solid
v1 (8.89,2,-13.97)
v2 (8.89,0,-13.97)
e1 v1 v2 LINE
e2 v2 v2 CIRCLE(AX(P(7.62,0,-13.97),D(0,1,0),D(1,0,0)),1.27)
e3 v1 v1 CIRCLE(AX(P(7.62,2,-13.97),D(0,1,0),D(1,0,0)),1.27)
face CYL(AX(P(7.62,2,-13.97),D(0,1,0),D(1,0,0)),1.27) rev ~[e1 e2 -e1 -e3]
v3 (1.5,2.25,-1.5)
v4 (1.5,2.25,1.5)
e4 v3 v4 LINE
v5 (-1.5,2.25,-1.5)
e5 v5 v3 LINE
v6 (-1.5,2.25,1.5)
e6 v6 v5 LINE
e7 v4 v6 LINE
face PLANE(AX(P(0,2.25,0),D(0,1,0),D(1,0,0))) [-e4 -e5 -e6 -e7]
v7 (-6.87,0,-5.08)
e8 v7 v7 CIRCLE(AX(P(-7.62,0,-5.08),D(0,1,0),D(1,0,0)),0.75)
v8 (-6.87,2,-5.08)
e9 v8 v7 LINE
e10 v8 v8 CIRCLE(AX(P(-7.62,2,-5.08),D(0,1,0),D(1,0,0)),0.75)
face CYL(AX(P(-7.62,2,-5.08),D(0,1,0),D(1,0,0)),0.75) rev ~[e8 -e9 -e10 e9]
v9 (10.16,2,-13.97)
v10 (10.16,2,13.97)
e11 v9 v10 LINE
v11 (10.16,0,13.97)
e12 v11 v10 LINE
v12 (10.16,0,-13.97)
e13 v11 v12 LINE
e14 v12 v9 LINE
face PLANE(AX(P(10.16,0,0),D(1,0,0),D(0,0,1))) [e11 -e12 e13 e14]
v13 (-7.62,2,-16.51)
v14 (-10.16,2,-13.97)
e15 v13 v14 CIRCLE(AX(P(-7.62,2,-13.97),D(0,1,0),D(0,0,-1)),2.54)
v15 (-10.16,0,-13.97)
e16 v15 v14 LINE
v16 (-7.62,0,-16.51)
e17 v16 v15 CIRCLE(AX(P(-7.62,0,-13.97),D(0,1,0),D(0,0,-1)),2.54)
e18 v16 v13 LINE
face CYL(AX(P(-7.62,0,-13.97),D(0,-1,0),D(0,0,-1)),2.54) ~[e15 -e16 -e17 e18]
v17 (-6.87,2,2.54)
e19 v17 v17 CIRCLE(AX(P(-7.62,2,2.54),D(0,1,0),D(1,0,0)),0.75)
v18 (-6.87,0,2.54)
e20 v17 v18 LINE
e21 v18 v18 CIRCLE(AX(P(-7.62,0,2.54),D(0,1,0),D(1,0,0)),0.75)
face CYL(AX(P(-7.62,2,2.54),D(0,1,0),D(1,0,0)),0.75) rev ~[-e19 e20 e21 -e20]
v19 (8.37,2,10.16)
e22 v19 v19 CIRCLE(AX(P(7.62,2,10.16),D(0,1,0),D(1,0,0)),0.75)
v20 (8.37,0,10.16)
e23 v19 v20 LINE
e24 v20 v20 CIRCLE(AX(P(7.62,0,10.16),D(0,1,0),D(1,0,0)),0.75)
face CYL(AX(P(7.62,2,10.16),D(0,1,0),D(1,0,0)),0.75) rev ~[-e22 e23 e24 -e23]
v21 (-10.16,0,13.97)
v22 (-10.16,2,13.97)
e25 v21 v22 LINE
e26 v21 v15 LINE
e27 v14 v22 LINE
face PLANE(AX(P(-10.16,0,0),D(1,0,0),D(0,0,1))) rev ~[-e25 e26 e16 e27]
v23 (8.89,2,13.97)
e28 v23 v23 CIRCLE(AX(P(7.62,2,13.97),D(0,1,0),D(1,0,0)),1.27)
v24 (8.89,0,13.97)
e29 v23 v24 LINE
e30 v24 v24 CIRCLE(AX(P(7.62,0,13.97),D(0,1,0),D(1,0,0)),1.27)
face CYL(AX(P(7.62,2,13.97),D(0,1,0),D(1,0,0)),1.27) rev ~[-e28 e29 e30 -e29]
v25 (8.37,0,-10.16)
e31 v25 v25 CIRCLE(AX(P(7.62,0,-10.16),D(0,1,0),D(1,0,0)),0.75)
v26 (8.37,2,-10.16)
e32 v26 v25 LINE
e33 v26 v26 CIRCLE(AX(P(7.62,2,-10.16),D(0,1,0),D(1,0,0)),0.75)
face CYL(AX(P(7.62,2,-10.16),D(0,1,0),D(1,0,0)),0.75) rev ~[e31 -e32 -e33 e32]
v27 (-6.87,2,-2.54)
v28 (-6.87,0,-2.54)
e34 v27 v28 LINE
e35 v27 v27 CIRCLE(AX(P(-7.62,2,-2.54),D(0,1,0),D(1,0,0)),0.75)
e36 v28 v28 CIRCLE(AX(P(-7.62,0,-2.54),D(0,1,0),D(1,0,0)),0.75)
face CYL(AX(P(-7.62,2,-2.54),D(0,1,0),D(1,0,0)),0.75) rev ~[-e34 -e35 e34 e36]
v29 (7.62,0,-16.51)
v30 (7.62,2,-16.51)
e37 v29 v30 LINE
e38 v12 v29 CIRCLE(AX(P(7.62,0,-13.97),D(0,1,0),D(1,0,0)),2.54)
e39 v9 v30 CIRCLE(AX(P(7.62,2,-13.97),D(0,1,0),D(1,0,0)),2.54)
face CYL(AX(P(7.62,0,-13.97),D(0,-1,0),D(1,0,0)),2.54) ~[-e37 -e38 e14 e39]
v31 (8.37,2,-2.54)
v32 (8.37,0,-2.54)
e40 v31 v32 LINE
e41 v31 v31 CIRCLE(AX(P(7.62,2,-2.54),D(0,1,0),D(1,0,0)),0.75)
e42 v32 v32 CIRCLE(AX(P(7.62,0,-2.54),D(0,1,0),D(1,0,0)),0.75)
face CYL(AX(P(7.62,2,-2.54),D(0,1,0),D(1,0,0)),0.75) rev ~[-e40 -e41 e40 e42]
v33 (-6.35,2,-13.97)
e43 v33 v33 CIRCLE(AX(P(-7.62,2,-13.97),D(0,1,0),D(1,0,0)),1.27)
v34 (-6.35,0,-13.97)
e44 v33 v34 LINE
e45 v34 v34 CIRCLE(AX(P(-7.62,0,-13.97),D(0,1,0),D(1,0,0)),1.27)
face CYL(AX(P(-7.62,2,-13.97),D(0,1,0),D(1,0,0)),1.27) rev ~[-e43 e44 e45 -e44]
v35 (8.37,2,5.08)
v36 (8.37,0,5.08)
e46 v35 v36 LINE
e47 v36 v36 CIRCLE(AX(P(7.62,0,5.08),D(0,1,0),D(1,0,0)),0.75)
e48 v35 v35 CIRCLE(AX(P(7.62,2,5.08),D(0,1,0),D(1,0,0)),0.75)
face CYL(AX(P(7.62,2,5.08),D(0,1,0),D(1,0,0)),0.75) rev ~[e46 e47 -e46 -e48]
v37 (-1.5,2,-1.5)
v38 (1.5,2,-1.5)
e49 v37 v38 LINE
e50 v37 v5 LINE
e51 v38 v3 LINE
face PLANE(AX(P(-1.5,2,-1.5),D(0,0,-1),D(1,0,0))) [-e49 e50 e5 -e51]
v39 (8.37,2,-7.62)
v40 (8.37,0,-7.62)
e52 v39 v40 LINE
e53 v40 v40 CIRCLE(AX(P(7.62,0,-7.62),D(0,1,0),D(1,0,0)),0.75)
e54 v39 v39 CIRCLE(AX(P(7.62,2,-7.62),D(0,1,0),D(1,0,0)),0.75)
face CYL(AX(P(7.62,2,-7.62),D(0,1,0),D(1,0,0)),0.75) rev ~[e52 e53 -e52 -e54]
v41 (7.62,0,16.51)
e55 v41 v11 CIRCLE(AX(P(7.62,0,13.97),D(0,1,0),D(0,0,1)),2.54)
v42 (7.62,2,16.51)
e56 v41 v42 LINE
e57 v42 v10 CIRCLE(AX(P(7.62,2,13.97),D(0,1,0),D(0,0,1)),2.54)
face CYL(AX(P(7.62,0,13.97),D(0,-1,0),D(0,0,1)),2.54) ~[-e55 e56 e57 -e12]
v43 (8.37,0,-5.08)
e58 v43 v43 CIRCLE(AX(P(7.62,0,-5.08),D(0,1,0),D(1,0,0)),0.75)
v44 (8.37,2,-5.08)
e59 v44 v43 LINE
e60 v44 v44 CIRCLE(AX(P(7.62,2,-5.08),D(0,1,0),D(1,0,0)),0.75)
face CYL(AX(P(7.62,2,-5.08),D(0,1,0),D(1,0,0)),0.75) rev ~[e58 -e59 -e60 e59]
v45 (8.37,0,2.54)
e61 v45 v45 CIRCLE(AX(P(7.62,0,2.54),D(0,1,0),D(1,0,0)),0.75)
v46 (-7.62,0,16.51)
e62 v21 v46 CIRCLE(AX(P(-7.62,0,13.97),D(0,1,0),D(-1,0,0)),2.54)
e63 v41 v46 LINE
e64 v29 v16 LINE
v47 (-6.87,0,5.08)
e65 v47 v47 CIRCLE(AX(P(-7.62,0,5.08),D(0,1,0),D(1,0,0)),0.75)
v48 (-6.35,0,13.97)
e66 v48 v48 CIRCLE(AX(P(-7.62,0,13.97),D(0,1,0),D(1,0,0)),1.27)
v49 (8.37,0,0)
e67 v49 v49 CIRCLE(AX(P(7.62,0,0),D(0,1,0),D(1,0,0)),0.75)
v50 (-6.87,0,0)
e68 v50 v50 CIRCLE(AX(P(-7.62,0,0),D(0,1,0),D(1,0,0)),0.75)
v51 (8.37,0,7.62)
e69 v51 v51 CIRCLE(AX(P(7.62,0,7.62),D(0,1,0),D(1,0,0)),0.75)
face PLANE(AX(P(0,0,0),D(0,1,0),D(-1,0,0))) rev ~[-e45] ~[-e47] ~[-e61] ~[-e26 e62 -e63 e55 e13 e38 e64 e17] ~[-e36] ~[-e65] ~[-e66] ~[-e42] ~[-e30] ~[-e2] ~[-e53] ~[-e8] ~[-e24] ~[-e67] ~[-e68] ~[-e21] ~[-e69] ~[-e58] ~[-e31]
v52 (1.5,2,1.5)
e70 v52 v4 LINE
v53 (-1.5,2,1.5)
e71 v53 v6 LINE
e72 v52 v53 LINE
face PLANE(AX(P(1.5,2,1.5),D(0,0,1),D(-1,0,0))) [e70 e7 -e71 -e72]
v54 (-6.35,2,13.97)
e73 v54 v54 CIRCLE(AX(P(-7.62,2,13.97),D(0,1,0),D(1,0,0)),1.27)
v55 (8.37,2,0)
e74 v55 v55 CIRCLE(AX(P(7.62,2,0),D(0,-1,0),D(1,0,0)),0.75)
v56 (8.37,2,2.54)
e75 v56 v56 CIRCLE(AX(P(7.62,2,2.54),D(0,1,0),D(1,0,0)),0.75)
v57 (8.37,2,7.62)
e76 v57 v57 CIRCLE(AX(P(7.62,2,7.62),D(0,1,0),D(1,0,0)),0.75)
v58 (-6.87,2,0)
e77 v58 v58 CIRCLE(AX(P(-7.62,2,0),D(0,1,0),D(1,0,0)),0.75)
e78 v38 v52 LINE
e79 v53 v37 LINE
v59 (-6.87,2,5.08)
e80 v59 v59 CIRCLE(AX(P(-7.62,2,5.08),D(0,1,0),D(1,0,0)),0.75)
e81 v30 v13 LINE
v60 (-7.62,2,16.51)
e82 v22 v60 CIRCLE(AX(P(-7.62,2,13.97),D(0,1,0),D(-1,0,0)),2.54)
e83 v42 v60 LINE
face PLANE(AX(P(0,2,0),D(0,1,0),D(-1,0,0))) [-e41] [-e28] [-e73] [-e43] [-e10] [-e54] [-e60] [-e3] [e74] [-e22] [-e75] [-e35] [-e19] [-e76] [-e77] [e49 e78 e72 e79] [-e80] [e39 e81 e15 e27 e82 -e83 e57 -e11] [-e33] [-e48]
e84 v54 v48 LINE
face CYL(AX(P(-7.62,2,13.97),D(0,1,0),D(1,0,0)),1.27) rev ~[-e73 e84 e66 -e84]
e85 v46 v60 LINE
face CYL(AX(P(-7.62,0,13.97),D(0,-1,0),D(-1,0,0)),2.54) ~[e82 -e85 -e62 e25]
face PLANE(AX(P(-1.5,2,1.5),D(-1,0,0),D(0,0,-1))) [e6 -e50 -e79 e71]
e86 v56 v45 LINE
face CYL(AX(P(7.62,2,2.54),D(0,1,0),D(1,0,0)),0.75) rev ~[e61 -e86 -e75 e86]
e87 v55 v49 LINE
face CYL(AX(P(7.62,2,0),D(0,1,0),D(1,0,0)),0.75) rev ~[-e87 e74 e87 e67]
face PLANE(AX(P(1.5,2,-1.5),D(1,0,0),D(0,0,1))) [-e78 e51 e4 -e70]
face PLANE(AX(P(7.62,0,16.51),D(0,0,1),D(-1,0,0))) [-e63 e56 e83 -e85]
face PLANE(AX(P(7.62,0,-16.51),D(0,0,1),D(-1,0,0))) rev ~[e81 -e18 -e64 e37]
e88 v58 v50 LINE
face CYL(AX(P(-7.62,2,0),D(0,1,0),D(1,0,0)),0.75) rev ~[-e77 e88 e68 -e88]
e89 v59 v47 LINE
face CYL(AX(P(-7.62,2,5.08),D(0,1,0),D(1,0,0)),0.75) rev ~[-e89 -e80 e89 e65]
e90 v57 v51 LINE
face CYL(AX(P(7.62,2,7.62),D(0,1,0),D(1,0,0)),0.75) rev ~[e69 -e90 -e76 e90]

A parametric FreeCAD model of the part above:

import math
import FreeCAD as App
import Part
import Sketcher
Q = App.Units.Quantity


def add_polygon(sketch, points):
    """Adds a closed chain of lines whose ends are joined by coincident constraints."""
    first, n = sketch.GeometryCount, len(points)
    for a, b in zip(points, points[1:] + points[:1]):
        sketch.addGeometry(Part.LineSegment(App.Vector(*a, 0), App.Vector(*b, 0)), False)
    for i in range(n):
        sketch.addConstraint(Sketcher.Constraint("Coincident", first + i, 2, first + (i + 1) % n, 1))

doc = App.newDocument("Part")
params = doc.addObject("Spreadsheet::Sheet", "Params")
for row, (alias, value) in enumerate([
    ("sketch1_radius", "0.1 in"),
    ("sketch1_width", "0.6 in"),
    ("pad1_length", "2 mm"),
    ("pocket1_length", "2 mm"),
    ("pad2_length", "0.25 mm"),
    ("sketch4_diameter", "0.1 in"),
    ("pocket2_length", "2 mm"),
], start=1):
    params.set(f"A{row}", alias)
    params.set(f"B{row}", "=" + value)
    params.setAlias(f"B{row}", alias)

body = doc.addObject("PartDesign::Body", "Body")

# Sketch on XZ plane
sketch1 = body.newObject("Sketcher::SketchObject", "Sketch")
sketch1.AttachmentSupport = (doc.getObject("XZ_Plane"), [""])
sketch1.MapMode = "FlatFace"
sketch1.addGeometry(Part.LineSegment(App.Vector(10.16, 13.97, 0), App.Vector(10.16, -13.97, 0)), False)
sketch1.addGeometry(Part.ArcOfCircle(Part.Circle(App.Vector(7.62, -13.97, 0), App.Vector(0, 0, 1), 2.54), math.radians(-90), math.radians(0)), False)
sketch1.addGeometry(Part.LineSegment(App.Vector(7.62, -16.51, 0), App.Vector(-7.62, -16.51, 0)), False)
sketch1.addGeometry(Part.ArcOfCircle(Part.Circle(App.Vector(-7.62, -13.97, 0), App.Vector(0, 0, 1), 2.54), math.radians(180), math.radians(270)), False)
sketch1.addGeometry(Part.LineSegment(App.Vector(-10.16, -13.97, 0), App.Vector(-10.16, 13.97, 0)), False)
sketch1.addGeometry(Part.ArcOfCircle(Part.Circle(App.Vector(-7.62, 13.97, 0), App.Vector(0, 0, 1), 2.54), math.radians(90), math.radians(180)), False)
sketch1.addGeometry(Part.LineSegment(App.Vector(-7.62, 16.51, 0), App.Vector(7.62, 16.51, 0)), False)
sketch1.addGeometry(Part.ArcOfCircle(Part.Circle(App.Vector(7.62, 13.97, 0), App.Vector(0, 0, 1), 2.54), math.radians(0), math.radians(90)), False)
sketch1.addConstraint(Sketcher.Constraint("Tangent", 0, 2, 1, 2))
sketch1.addConstraint(Sketcher.Constraint("Tangent", 1, 1, 2, 1))
sketch1.addConstraint(Sketcher.Constraint("Tangent", 2, 2, 3, 2))
sketch1.addConstraint(Sketcher.Constraint("Tangent", 3, 1, 4, 1))
sketch1.addConstraint(Sketcher.Constraint("Tangent", 4, 2, 5, 2))
sketch1.addConstraint(Sketcher.Constraint("Tangent", 5, 1, 6, 1))
sketch1.addConstraint(Sketcher.Constraint("Tangent", 6, 2, 7, 2))
sketch1.addConstraint(Sketcher.Constraint("Tangent", 7, 1, 0, 1))
sketch1.addConstraint(Sketcher.Constraint("Vertical", 0))
sketch1.addConstraint(Sketcher.Constraint("Horizontal", 2))
sketch1.addConstraint(Sketcher.Constraint("Vertical", 4))
sketch1.addConstraint(Sketcher.Constraint("Horizontal", 6))
sketch1.addConstraint(Sketcher.Constraint("Equal", 1, 3))
sketch1.addConstraint(Sketcher.Constraint("Equal", 3, 5))
sketch1.addConstraint(Sketcher.Constraint("Equal", 5, 7))
sketch1.addConstraint(Sketcher.Constraint("Symmetric", 1, 3, 5, 3, -1, 1))
sketch1.addConstraint(Sketcher.Constraint("Radius", 1, Q("0.1 in")))
sketch1.addConstraint(Sketcher.Constraint("DistanceX", 2, 2, 2, 1, Q("0.6 in")))
sketch1.addConstraint(Sketcher.Constraint("DistanceY", 1, 3, -1, 1, Q("0.55 in")))
sketch1.setExpression("Constraints[16]", "Params.sketch1_radius")
sketch1.setExpression("Constraints[17]", "Params.sketch1_width")
pad1 = body.newObject("PartDesign::Pad", "Pad")
pad1.Profile = sketch1
pad1.setExpression("Length", "Params.pad1_length")
pad1.Reversed = True

# Sketch on XZ plane
sketch2 = body.newObject("Sketcher::SketchObject", "Sketch001")
sketch2.AttachmentSupport = (doc.getObject("XZ_Plane"), [""])
sketch2.MapMode = "FlatFace"
sketch2.AttachmentOffset = App.Placement(App.Vector(0, 0, -2), App.Rotation())
sketch2.addGeometry(Part.Circle(App.Vector(7.62, 0, 0), App.Vector(0, 0, 1), 0.75), False)
sketch2.addGeometry(Part.Circle(App.Vector(-7.62, 0, 0), App.Vector(0, 0, 1), 0.75), False)
sketch2.addGeometry(Part.Circle(App.Vector(7.62, -2.54, 0), App.Vector(0, 0, 1), 0.75), False)
sketch2.addGeometry(Part.Circle(App.Vector(7.62, -5.08, 0), App.Vector(0, 0, 1), 0.75), False)
sketch2.addGeometry(Part.Circle(App.Vector(7.62, -7.62, 0), App.Vector(0, 0, 1), 0.75), False)
sketch2.addGeometry(Part.Circle(App.Vector(7.62, -10.16, 0), App.Vector(0, 0, 1), 0.75), False)
sketch2.addGeometry(Part.Circle(App.Vector(7.62, 2.54, 0), App.Vector(0, 0, 1), 0.75), False)
sketch2.addGeometry(Part.Circle(App.Vector(7.62, 5.08, 0), App.Vector(0, 0, 1), 0.75), False)
sketch2.addGeometry(Part.Circle(App.Vector(7.62, 7.62, 0), App.Vector(0, 0, 1), 0.75), False)
sketch2.addGeometry(Part.Circle(App.Vector(7.62, 10.16, 0), App.Vector(0, 0, 1), 0.75), False)
sketch2.addGeometry(Part.Circle(App.Vector(-7.62, -2.54, 0), App.Vector(0, 0, 1), 0.75), False)
sketch2.addGeometry(Part.Circle(App.Vector(-7.62, -5.08, 0), App.Vector(0, 0, 1), 0.75), False)
sketch2.addGeometry(Part.Circle(App.Vector(-7.62, 2.54, 0), App.Vector(0, 0, 1), 0.75), False)
sketch2.addGeometry(Part.Circle(App.Vector(-7.62, 5.08, 0), App.Vector(0, 0, 1), 0.75), False)
sketch2.addConstraint(Sketcher.Constraint("Equal", 0, 1))
sketch2.addConstraint(Sketcher.Constraint("Equal", 1, 2))
sketch2.addConstraint(Sketcher.Constraint("Equal", 2, 3))
sketch2.addConstraint(Sketcher.Constraint("Equal", 3, 4))
sketch2.addConstraint(Sketcher.Constraint("Equal", 4, 5))
sketch2.addConstraint(Sketcher.Constraint("Equal", 5, 6))
sketch2.addConstraint(Sketcher.Constraint("Equal", 6, 7))
sketch2.addConstraint(Sketcher.Constraint("Equal", 7, 8))
sketch2.addConstraint(Sketcher.Constraint("Equal", 8, 9))
sketch2.addConstraint(Sketcher.Constraint("Equal", 9, 10))
sketch2.addConstraint(Sketcher.Constraint("Equal", 10, 11))
sketch2.addConstraint(Sketcher.Constraint("Equal", 11, 12))
sketch2.addConstraint(Sketcher.Constraint("Equal", 12, 13))
sketch2.addConstraint(Sketcher.Constraint("Symmetric", 0, 3, 1, 3, -1, 1))
sketch2.addConstraint(Sketcher.Constraint("Symmetric", 6, 3, 10, 3, -1, 1))
sketch2.addConstraint(Sketcher.Constraint("Symmetric", 7, 3, 11, 3, -1, 1))
sketch2.addConstraint(Sketcher.Constraint("Symmetric", 2, 3, 12, 3, -1, 1))
sketch2.addConstraint(Sketcher.Constraint("Symmetric", 3, 3, 13, 3, -1, 1))
sketch2.addConstraint(Sketcher.Constraint("Symmetric", 2, 3, 10, 3, -2))
sketch2.addConstraint(Sketcher.Constraint("Symmetric", 3, 3, 11, 3, -2))
sketch2.addConstraint(Sketcher.Constraint("Symmetric", 4, 3, 8, 3, -1))
sketch2.addConstraint(Sketcher.Constraint("Symmetric", 5, 3, 9, 3, -1))
sketch2.addConstraint(Sketcher.Constraint("PointOnObject", 0, 3, -1))
sketch2.addConstraint(Sketcher.Constraint("Vertical", 0, 3, 2, 3))
sketch2.addConstraint(Sketcher.Constraint("Vertical", 2, 3, 3, 3))
sketch2.addConstraint(Sketcher.Constraint("Vertical", 3, 3, 4, 3))
sketch2.addConstraint(Sketcher.Constraint("Vertical", 4, 3, 5, 3))
sketch2.addConstraint(Sketcher.Constraint("DistanceX", -1, 1, 0, 3, Q("0.3 in")))
sketch2.addConstraint(Sketcher.Constraint("DistanceY", 2, 3, -1, 1, Q("0.1 in")))
sketch2.addConstraint(Sketcher.Constraint("DistanceY", 4, 3, -1, 1, Q("0.3 in")))
sketch2.addConstraint(Sketcher.Constraint("DistanceY", 3, 3, 2, 3, Q("0.1 in")))
sketch2.addConstraint(Sketcher.Constraint("DistanceY", 5, 3, 4, 3, Q("0.1 in")))
sketch2.addConstraint(Sketcher.Constraint("Diameter", 0, Q("1.5 mm")))
pocket1 = body.newObject("PartDesign::Pocket", "Pocket")
pocket1.Profile = sketch2
pocket1.setExpression("Length", "Params.pocket1_length")
pocket1.Reversed = True

# Sketch on XZ plane
sketch3 = body.newObject("Sketcher::SketchObject", "Sketch002")
sketch3.AttachmentSupport = (doc.getObject("XZ_Plane"), [""])
sketch3.MapMode = "FlatFace"
sketch3.AttachmentOffset = App.Placement(App.Vector(0, 0, -2), App.Rotation())
add_polygon(sketch3, [(-1.5, 1.5), (1.5, 1.5), (1.5, -1.5), (-1.5, -1.5)])  # lines 0-3
sketch3.addConstraint(Sketcher.Constraint("Horizontal", 0))
sketch3.addConstraint(Sketcher.Constraint("Vertical", 1))
sketch3.addConstraint(Sketcher.Constraint("Horizontal", 2))
sketch3.addConstraint(Sketcher.Constraint("Vertical", 3))
sketch3.addConstraint(Sketcher.Constraint("Symmetric", 0, 2, 2, 2, -1, 1))
sketch3.addConstraint(Sketcher.Constraint("Equal", 2, 1))
sketch3.addConstraint(Sketcher.Constraint("DistanceX", 0, 1, 0, 2, Q("0.1181 in")))
pad2 = body.newObject("PartDesign::Pad", "Pad001")
pad2.Profile = sketch3
pad2.setExpression("Length", "Params.pad2_length")
pad2.Reversed = True

# Sketch on XZ plane
sketch4 = body.newObject("Sketcher::SketchObject", "Sketch003")
sketch4.AttachmentSupport = (doc.getObject("XZ_Plane"), [""])
sketch4.MapMode = "FlatFace"
sketch4.AttachmentOffset = App.Placement(App.Vector(0, 0, -2), App.Rotation())
sketch4.addGeometry(Part.Circle(App.Vector(7.62, 13.97, 0), App.Vector(0, 0, 1), 1.27), False)
sketch4.addGeometry(Part.Circle(App.Vector(7.62, -13.97, 0), App.Vector(0, 0, 1), 1.27), False)
sketch4.addGeometry(Part.Circle(App.Vector(-7.62, 13.97, 0), App.Vector(0, 0, 1), 1.27), False)
sketch4.addGeometry(Part.Circle(App.Vector(-7.62, -13.97, 0), App.Vector(0, 0, 1), 1.27), False)
sketch4.addConstraint(Sketcher.Constraint("Equal", 0, 1))
sketch4.addConstraint(Sketcher.Constraint("Equal", 1, 2))
sketch4.addConstraint(Sketcher.Constraint("Equal", 2, 3))
sketch4.addConstraint(Sketcher.Constraint("Symmetric", 1, 3, 2, 3, -1, 1))
sketch4.addConstraint(Sketcher.Constraint("Symmetric", 0, 3, 3, 3, -1, 1))
sketch4.addConstraint(Sketcher.Constraint("Symmetric", 0, 3, 2, 3, -2))
sketch4.addConstraint(Sketcher.Constraint("Diameter", 0, Q("0.1 in")))
sketch4.addConstraint(Sketcher.Constraint("DistanceY", 1, 3, 0, 3, Q("1.1 in")))
sketch4.addConstraint(Sketcher.Constraint("DistanceX", 2, 3, 0, 3, Q("0.6 in")))
sketch4.setExpression("Constraints[6]", "Params.sketch4_diameter")
pocket2 = body.newObject("PartDesign::Pocket", "Pocket001")
pocket2.Profile = sketch4
pocket2.setExpression("Length", "Params.pocket2_length")
pocket2.Reversed = True

doc.recompute()
